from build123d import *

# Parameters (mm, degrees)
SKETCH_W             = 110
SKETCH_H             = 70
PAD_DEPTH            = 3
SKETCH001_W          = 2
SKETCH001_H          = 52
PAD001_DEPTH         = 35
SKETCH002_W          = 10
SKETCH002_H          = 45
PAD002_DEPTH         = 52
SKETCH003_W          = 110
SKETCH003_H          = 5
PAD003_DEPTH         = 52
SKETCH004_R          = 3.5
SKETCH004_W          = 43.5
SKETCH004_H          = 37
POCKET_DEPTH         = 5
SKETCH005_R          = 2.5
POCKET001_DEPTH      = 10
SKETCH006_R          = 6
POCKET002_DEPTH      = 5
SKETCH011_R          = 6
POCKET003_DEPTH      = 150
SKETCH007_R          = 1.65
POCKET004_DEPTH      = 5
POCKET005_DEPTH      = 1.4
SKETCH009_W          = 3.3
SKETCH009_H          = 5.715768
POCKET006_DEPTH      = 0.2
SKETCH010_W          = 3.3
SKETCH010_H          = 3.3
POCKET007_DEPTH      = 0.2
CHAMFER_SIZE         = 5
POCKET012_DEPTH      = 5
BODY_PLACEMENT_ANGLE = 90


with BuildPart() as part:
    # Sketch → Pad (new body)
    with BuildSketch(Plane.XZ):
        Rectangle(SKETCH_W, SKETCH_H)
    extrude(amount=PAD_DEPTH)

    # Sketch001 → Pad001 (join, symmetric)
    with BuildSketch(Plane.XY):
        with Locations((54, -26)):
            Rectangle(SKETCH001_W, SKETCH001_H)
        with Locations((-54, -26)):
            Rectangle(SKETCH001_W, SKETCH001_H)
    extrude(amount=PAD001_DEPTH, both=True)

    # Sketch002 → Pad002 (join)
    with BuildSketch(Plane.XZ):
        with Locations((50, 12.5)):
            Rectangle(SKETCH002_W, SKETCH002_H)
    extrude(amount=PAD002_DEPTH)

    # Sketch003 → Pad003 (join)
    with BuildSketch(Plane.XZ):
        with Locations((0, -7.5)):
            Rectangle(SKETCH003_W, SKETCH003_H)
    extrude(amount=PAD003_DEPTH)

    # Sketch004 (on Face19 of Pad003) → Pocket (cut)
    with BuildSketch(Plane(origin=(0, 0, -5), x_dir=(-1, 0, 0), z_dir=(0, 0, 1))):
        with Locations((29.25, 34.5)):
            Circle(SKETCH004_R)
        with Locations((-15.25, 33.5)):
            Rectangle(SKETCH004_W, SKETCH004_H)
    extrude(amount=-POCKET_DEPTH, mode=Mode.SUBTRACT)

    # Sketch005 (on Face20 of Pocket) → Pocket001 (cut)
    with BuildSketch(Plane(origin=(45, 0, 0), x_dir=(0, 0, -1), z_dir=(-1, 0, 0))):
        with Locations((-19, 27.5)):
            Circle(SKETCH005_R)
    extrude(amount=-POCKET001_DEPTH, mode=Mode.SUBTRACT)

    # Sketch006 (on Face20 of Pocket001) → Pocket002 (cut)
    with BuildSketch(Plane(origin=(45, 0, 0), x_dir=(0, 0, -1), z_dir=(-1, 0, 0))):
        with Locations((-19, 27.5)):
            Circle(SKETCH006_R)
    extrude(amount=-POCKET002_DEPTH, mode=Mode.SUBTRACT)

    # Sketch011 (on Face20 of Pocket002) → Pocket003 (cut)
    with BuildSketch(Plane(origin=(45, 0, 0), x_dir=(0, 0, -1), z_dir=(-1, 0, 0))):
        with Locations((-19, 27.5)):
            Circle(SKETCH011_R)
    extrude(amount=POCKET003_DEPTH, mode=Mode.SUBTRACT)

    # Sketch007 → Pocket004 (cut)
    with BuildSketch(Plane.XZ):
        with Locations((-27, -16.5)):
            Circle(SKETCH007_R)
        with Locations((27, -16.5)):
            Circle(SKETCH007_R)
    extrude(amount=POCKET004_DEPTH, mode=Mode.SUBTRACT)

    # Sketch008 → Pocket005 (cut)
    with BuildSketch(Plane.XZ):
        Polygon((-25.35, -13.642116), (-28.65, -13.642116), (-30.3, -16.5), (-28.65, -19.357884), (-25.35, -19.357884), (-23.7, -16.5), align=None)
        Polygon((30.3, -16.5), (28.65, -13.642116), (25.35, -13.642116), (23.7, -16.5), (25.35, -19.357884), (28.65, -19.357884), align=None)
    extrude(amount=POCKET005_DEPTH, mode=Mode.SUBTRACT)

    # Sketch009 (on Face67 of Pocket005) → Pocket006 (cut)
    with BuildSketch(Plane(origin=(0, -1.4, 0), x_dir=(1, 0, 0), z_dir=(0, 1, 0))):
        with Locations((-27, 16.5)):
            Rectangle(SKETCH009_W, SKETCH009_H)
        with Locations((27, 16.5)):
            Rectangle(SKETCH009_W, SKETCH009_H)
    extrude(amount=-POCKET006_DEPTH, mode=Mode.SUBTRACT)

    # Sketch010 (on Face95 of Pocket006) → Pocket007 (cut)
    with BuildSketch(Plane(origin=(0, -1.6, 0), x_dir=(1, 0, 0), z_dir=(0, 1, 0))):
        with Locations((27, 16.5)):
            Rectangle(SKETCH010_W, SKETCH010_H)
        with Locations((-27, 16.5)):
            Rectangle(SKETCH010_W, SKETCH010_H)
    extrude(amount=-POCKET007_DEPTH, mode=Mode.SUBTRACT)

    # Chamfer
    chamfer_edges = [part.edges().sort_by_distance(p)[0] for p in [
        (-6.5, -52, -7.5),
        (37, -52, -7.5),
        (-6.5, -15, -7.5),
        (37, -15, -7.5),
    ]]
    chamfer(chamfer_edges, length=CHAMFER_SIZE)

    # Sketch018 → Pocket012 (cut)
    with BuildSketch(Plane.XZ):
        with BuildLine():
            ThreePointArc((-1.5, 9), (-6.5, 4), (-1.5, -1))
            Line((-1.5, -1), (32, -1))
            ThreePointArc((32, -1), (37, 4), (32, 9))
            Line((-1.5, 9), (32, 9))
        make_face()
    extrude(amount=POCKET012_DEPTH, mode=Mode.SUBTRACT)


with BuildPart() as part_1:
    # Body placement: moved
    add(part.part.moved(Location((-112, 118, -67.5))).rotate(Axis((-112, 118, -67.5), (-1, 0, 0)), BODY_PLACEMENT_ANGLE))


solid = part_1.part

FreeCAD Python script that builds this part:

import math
import FreeCAD as App
import Part
import Sketcher
Q = App.Units.Quantity


def edges_at(feature, points):
    """Names of the edges that pass closest to the given points."""
    edges = feature.Shape.Edges
    near = lambda p: min(range(len(edges)), key=lambda i: edges[i].distToShape(Part.Vertex(*p))[0])
    return sorted({f"Edge{near(p) + 1}" for p in points})

doc = App.newDocument("Part")
params = doc.addObject("Spreadsheet::Sheet", "Params")
for row, (alias, value) in enumerate([
    ("sketch1_width", "110 mm"),
    ("sketch1_height", "70 mm"),
    ("pad1_length", "3 mm"),
    ("sketch2_width", "2 mm"),
    ("sketch2_height", "52 mm"),
    ("pad2_length", "70 mm"),
    ("sketch3_width", "10 mm"),
    ("sketch3_height", "45 mm"),
    ("pad3_length", "52 mm"),
    ("sketch4_width", "110 mm"),
    ("sketch4_height", "5 mm"),
    ("pad4_length", "52 mm"),
    ("sketch5_diameter", "7 mm"),
    ("sketch5_height", "37 mm"),
    ("sketch5_width", "43.5 mm"),
    ("pocket1_length", "5 mm"),
    ("sketch6_diameter", "5 mm"),
    ("pocket2_length", "10 mm"),
    ("sketch7_diameter", "12 mm"),
    ("pocket3_length", "5 mm"),
    ("sketch8_diameter", "12 mm"),
    ("pocket4_length", "150 mm"),
    ("sketch9_diameter", "3.3 mm"),
    ("pocket5_length", "5 mm"),
    ("sketch10_width", "3.3 mm"),
    ("sketch10_length", "3.3 mm"),
    ("pocket6_length", "1.4 mm"),
    ("sketch11_width", "3.3 mm"),
    ("pocket7_length", "0.2 mm"),
    ("sketch12_width", "3.3 mm"),
    ("pocket8_length", "0.2 mm"),
    ("chamfer_size", "5 mm"),
    ("sketch13_radius", "5 mm"),
    ("sketch13_width", "33.5 mm"),
    ("pocket9_length", "5 mm"),
], start=1):
    params.set(f"A{row}", alias)
    params.set(f"B{row}", "=" + value)
    params.setAlias(f"B{row}", alias)

body = doc.addObject("PartDesign::Body", "Body")

# Sketch on XZ plane
sketch1 = body.newObject("Sketcher::SketchObject", "Sketch")
sketch1.AttachmentSupport = (doc.getObject("XZ_Plane"), [""])
sketch1.MapMode = "FlatFace"
sketch1.addGeometry(Part.LineSegment(App.Vector(-55, 35, 0), App.Vector(-55, -35, 0)), False)
sketch1.addGeometry(Part.LineSegment(App.Vector(-55, -35, 0), App.Vector(55, -35, 0)), False)
sketch1.addGeometry(Part.LineSegment(App.Vector(55, -35, 0), App.Vector(55, 35, 0)), False)
sketch1.addGeometry(Part.LineSegment(App.Vector(55, 35, 0), App.Vector(-55, 35, 0)), False)
sketch1.addConstraint(Sketcher.Constraint("Coincident", 0, 2, 1, 1))
sketch1.addConstraint(Sketcher.Constraint("Coincident", 1, 2, 2, 1))
sketch1.addConstraint(Sketcher.Constraint("Coincident", 2, 2, 3, 1))
sketch1.addConstraint(Sketcher.Constraint("Coincident", 3, 2, 0, 1))
sketch1.addConstraint(Sketcher.Constraint("Vertical", 0))
sketch1.addConstraint(Sketcher.Constraint("Horizontal", 1))
sketch1.addConstraint(Sketcher.Constraint("Vertical", 2))
sketch1.addConstraint(Sketcher.Constraint("Horizontal", 3))
sketch1.addConstraint(Sketcher.Constraint("Symmetric", 0, 2, 2, 2, -1, 1))
sketch1.addConstraint(Sketcher.Constraint("DistanceX", 1, 1, 1, 2, 110.0))
sketch1.addConstraint(Sketcher.Constraint("DistanceY", 0, 2, 0, 1, 70.0))
sketch1.setExpression("Constraints[9]", "Params.sketch1_width")
sketch1.setExpression("Constraints[10]", "Params.sketch1_height")
pad1 = body.newObject("PartDesign::Pad", "Pad")
pad1.Profile = sketch1
pad1.setExpression("Length", "Params.pad1_length")

# Sketch on XY plane
sketch2 = body.newObject("Sketcher::SketchObject", "Sketch001")
sketch2.AttachmentSupport = (doc.getObject("XY_Plane"), [""])
sketch2.MapMode = "FlatFace"
sketch2.addGeometry(Part.LineSegment(App.Vector(53, 0, 0), App.Vector(53, -52, 0)), False)
sketch2.addGeometry(Part.LineSegment(App.Vector(53, -52, 0), App.Vector(55, -52, 0)), False)
sketch2.addGeometry(Part.LineSegment(App.Vector(55, -52, 0), App.Vector(55, 0, 0)), False)
sketch2.addGeometry(Part.LineSegment(App.Vector(55, 0, 0), App.Vector(53, 0, 0)), False)
sketch2.addGeometry(Part.LineSegment(App.Vector(-55, 0, 0), App.Vector(-55, -52, 0)), False)
sketch2.addGeometry(Part.LineSegment(App.Vector(-55, -52, 0), App.Vector(-53, -52, 0)), False)
sketch2.addGeometry(Part.LineSegment(App.Vector(-53, -52, 0), App.Vector(-53, 0, 0)), False)
sketch2.addGeometry(Part.LineSegment(App.Vector(-53, 0, 0), App.Vector(-55, 0, 0)), False)
sketch2.addConstraint(Sketcher.Constraint("Coincident", 0, 2, 1, 1))
sketch2.addConstraint(Sketcher.Constraint("Coincident", 1, 2, 2, 1))
sketch2.addConstraint(Sketcher.Constraint("Coincident", 2, 2, 3, 1))
sketch2.addConstraint(Sketcher.Constraint("Coincident", 3, 2, 0, 1))
sketch2.addConstraint(Sketcher.Constraint("Coincident", 4, 2, 5, 1))
sketch2.addConstraint(Sketcher.Constraint("Coincident", 5, 2, 6, 1))
sketch2.addConstraint(Sketcher.Constraint("Coincident", 6, 2, 7, 1))
sketch2.addConstraint(Sketcher.Constraint("Coincident", 7, 2, 4, 1))
sketch2.addConstraint(Sketcher.Constraint("Vertical", 0))
sketch2.addConstraint(Sketcher.Constraint("Horizontal", 1))
sketch2.addConstraint(Sketcher.Constraint("Vertical", 2))
sketch2.addConstraint(Sketcher.Constraint("Horizontal", 3))
sketch2.addConstraint(Sketcher.Constraint("Vertical", 4))
sketch2.addConstraint(Sketcher.Constraint("Horizontal", 5))
sketch2.addConstraint(Sketcher.Constraint("Vertical", 6))
sketch2.addConstraint(Sketcher.Constraint("Horizontal", 7))
sketch2.addConstraint(Sketcher.Constraint("Symmetric", 3, 2, 6, 2, -1, 1))
sketch2.addConstraint(Sketcher.Constraint("Symmetric", 1, 2, 4, 2, -2))
sketch2.addConstraint(Sketcher.Constraint("PointOnObject", 2, 2, -1))
sketch2.addConstraint(Sketcher.Constraint("DistanceX", 1, 1, 1, 2, 2.0))
sketch2.addConstraint(Sketcher.Constraint("DistanceY", 0, 2, 0, 1, 52.0))
sketch2.addConstraint(Sketcher.Constraint("DistanceX", -1, 1, 0, 2, 53.0))
sketch2.setExpression("Constraints[19]", "Params.sketch2_width")
sketch2.setExpression("Constraints[20]", "Params.sketch2_height")
pad2 = body.newObject("PartDesign::Pad", "Pad001")
pad2.Profile = sketch2
pad2.setExpression("Length", "Params.pad2_length")
pad2.Midplane = True

# Sketch on XZ plane
sketch3 = body.newObject("Sketcher::SketchObject", "Sketch002")
sketch3.AttachmentSupport = (doc.getObject("XZ_Plane"), [""])
sketch3.MapMode = "FlatFace"
sketch3.addGeometry(Part.LineSegment(App.Vector(45, 35, 0), App.Vector(45, -10, 0)), False)
sketch3.addGeometry(Part.LineSegment(App.Vector(45, -10, 0), App.Vector(55, -10, 0)), False)
sketch3.addGeometry(Part.LineSegment(App.Vector(55, -10, 0), App.Vector(55, 35, 0)), False)
sketch3.addGeometry(Part.LineSegment(App.Vector(55, 35, 0), App.Vector(45, 35, 0)), False)
sketch3.addConstraint(Sketcher.Constraint("Coincident", 0, 2, 1, 1))
sketch3.addConstraint(Sketcher.Constraint("Coincident", 1, 2, 2, 1))
sketch3.addConstraint(Sketcher.Constraint("Coincident", 2, 2, 3, 1))
sketch3.addConstraint(Sketcher.Constraint("Coincident", 3, 2, 0, 1))
sketch3.addConstraint(Sketcher.Constraint("Vertical", 0))
sketch3.addConstraint(Sketcher.Constraint("Horizontal", 1))
sketch3.addConstraint(Sketcher.Constraint("Vertical", 2))
sketch3.addConstraint(Sketcher.Constraint("Horizontal", 3))
sketch3.addConstraint(Sketcher.Constraint("DistanceX", 1, 1, 1, 2, 10.0))
sketch3.addConstraint(Sketcher.Constraint("DistanceY", 0, 2, 0, 1, 45.0))
sketch3.addConstraint(Sketcher.Constraint("DistanceX", -1, 1, 0, 2, 45.0))
sketch3.addConstraint(Sketcher.Constraint("DistanceY", 0, 2, -1, 1, 10.0))
sketch3.setExpression("Constraints[8]", "Params.sketch3_width")
sketch3.setExpression("Constraints[9]", "Params.sketch3_height")
pad3 = body.newObject("PartDesign::Pad", "Pad002")
pad3.Profile = sketch3
pad3.setExpression("Length", "Params.pad3_length")

# Sketch on XZ plane
sketch4 = body.newObject("Sketcher::SketchObject", "Sketch003")
sketch4.AttachmentSupport = (doc.getObject("XZ_Plane"), [""])
sketch4.MapMode = "FlatFace"
sketch4.addGeometry(Part.LineSegment(App.Vector(-55, -5, 0), App.Vector(-55, -10, 0)), False)
sketch4.addGeometry(Part.LineSegment(App.Vector(-55, -10, 0), App.Vector(55, -10, 0)), False)
sketch4.addGeometry(Part.LineSegment(App.Vector(55, -10, 0), App.Vector(55, -5, 0)), False)
sketch4.addGeometry(Part.LineSegment(App.Vector(55, -5, 0), App.Vector(-55, -5, 0)), False)
sketch4.addConstraint(Sketcher.Constraint("Coincident", 0, 2, 1, 1))
sketch4.addConstraint(Sketcher.Constraint("Coincident", 1, 2, 2, 1))
sketch4.addConstraint(Sketcher.Constraint("Coincident", 2, 2, 3, 1))
sketch4.addConstraint(Sketcher.Constraint("Coincident", 3, 2, 0, 1))
sketch4.addConstraint(Sketcher.Constraint("Vertical", 0))
sketch4.addConstraint(Sketcher.Constraint("Horizontal", 1))
sketch4.addConstraint(Sketcher.Constraint("Vertical", 2))
sketch4.addConstraint(Sketcher.Constraint("Horizontal", 3))
sketch4.addConstraint(Sketcher.Constraint("DistanceX", 1, 1, 1, 2, 110.0))
sketch4.addConstraint(Sketcher.Constraint("DistanceY", 0, 2, 0, 1, 5.0))
sketch4.addConstraint(Sketcher.Constraint("DistanceX", 0, 2, -1, 1, 55.0))
sketch4.addConstraint(Sketcher.Constraint("DistanceY", 0, 2, -1, 1, 10.0))
sketch4.setExpression("Constraints[8]", "Params.sketch4_width")
sketch4.setExpression("Constraints[9]", "Params.sketch4_height")
pad4 = body.newObject("PartDesign::Pad", "Pad003")
pad4.Profile = sketch4
pad4.setExpression("Length", "Params.pad4_length")

# Sketch on XY plane
sketch5 = body.newObject("Sketcher::SketchObject", "Sketch004")
sketch5.AttachmentSupport = (doc.getObject("XY_Plane"), [""])
sketch5.MapMode = "FlatFace"
sketch5.AttachmentOffset = App.Placement(App.Vector(0, 0, -5), App.Rotation())
sketch5.addGeometry(Part.Circle(App.Vector(-29.25, -34.5, 0), App.Vector(0, 0, 1), 3.5), False)
sketch5.addGeometry(Part.LineSegment(App.Vector(37, -52, 0), App.Vector(37, -15, 0)), False)
sketch5.addGeometry(Part.LineSegment(App.Vector(37, -15, 0), App.Vector(-6.5, -15, 0)), False)
sketch5.addGeometry(Part.LineSegment(App.Vector(-6.5, -15, 0), App.Vector(-6.5, -52, 0)), False)
sketch5.addGeometry(Part.LineSegment(App.Vector(-6.5, -52, 0), App.Vector(37, -52, 0)), False)
sketch5.addConstraint(Sketcher.Constraint("Coincident", 1, 2, 2, 1))
sketch5.addConstraint(Sketcher.Constraint("Coincident", 2, 2, 3, 1))
sketch5.addConstraint(Sketcher.Constraint("Coincident", 3, 2, 4, 1))
sketch5.addConstraint(Sketcher.Constraint("Coincident", 4, 2, 1, 1))
sketch5.addConstraint(Sketcher.Constraint("Vertical", 1))
sketch5.addConstraint(Sketcher.Constraint("Horizontal", 2))
sketch5.addConstraint(Sketcher.Constraint("Vertical", 3))
sketch5.addConstraint(Sketcher.Constraint("Horizontal", 4))
sketch5.addConstraint(Sketcher.Constraint("Diameter", 0, 7.0))
sketch5.addConstraint(Sketcher.Constraint("DistanceY", 1, 1, 1, 2, 37.0))
sketch5.addConstraint(Sketcher.Constraint("DistanceX", 2, 2, 2, 1, 43.5))
sketch5.addConstraint(Sketcher.Constraint("DistanceX", -1, 1, 1, 2, 37.0))
sketch5.addConstraint(Sketcher.Constraint("DistanceY", 1, 2, -1, 1, 15.0))
sketch5.addConstraint(Sketcher.Constraint("DistanceY", 0, 3, -1, 1, 34.5))
sketch5.addConstraint(Sketcher.Constraint("DistanceX", 0, 3, -1, 1, 29.25))
sketch5.setExpression("Constraints[8]", "Params.sketch5_diameter")
sketch5.setExpression("Constraints[9]", "Params.sketch5_height")
sketch5.setExpression("Constraints[10]", "Params.sketch5_width")
pocket1 = body.newObject("PartDesign::Pocket", "Pocket")
pocket1.Profile = sketch5
pocket1.setExpression("Length", "Params.pocket1_length")

# Sketch on YZ plane
sketch6 = body.newObject("Sketcher::SketchObject", "Sketch005")
sketch6.AttachmentSupport = (doc.getObject("YZ_Plane"), [""])
sketch6.MapMode = "FlatFace"
sketch6.AttachmentOffset = App.Placement(App.Vector(0, 0, 45), App.Rotation())
sketch6.addGeometry(Part.Circle(App.Vector(-27.5, 19, 0), App.Vector(0, 0, 1), 2.5), False)
sketch6.addConstraint(Sketcher.Constraint("Diameter", 0, 5.0))
sketch6.addConstraint(Sketcher.Constraint("DistanceY", -1, 1, 0, 3, 19.0))
sketch6.addConstraint(Sketcher.Constraint("DistanceX", 0, 3, -1, 1, 27.5))
sketch6.setExpression("Constraints[0]", "Params.sketch6_diameter")
pocket2 = body.newObject("PartDesign::Pocket", "Pocket001")
pocket2.Profile = sketch6
pocket2.setExpression("Length", "Params.pocket2_length")
pocket2.Reversed = True

# Sketch on YZ plane
sketch7 = body.newObject("Sketcher::SketchObject", "Sketch006")
sketch7.AttachmentSupport = (doc.getObject("YZ_Plane"), [""])
sketch7.MapMode = "FlatFace"
sketch7.AttachmentOffset = App.Placement(App.Vector(0, 0, 45), App.Rotation())
sketch7.addGeometry(Part.Circle(App.Vector(-27.5, 19, 0), App.Vector(0, 0, 1), 6), False)
sketch7.addConstraint(Sketcher.Constraint("Diameter", 0, 12.0))
sketch7.addConstraint(Sketcher.Constraint("DistanceY", -1, 1, 0, 3, 19.0))
sketch7.addConstraint(Sketcher.Constraint("DistanceX", 0, 3, -1, 1, 27.5))
sketch7.setExpression("Constraints[0]", "Params.sketch7_diameter")
pocket3 = body.newObject("PartDesign::Pocket", "Pocket002")
pocket3.Profile = sketch7
pocket3.setExpression("Length", "Params.pocket3_length")
pocket3.Reversed = True

# Sketch on YZ plane
sketch8 = body.newObject("Sketcher::SketchObject", "Sketch007")
sketch8.AttachmentSupport = (doc.getObject("YZ_Plane"), [""])
sketch8.MapMode = "FlatFace"
sketch8.AttachmentOffset = App.Placement(App.Vector(0, 0, 45), App.Rotation())
sketch8.addGeometry(Part.Circle(App.Vector(-27.5, 19, 0), App.Vector(0, 0, 1), 6), False)
sketch8.addConstraint(Sketcher.Constraint("Diameter", 0, 12.0))
sketch8.addConstraint(Sketcher.Constraint("DistanceY", -1, 1, 0, 3, 19.0))
sketch8.addConstraint(Sketcher.Constraint("DistanceX", 0, 3, -1, 1, 27.5))
sketch8.setExpression("Constraints[0]", "Params.sketch8_diameter")
pocket4 = body.newObject("PartDesign::Pocket", "Pocket003")
pocket4.Profile = sketch8
pocket4.setExpression("Length", "Params.pocket4_length")

# Sketch on XZ plane
sketch9 = body.newObject("Sketcher::SketchObject", "Sketch008")
sketch9.AttachmentSupport = (doc.getObject("XZ_Plane"), [""])
sketch9.MapMode = "FlatFace"
sketch9.addGeometry(Part.Circle(App.Vector(-27, -16.5, 0), App.Vector(0, 0, 1), 1.65), False)
sketch9.addGeometry(Part.Circle(App.Vector(27, -16.5, 0), App.Vector(0, 0, 1), 1.65), False)
sketch9.addConstraint(Sketcher.Constraint("Equal", 0, 1))
sketch9.addConstraint(Sketcher.Constraint("Symmetric", 0, 3, 1, 3, -2))
sketch9.addConstraint(Sketcher.Constraint("Diameter", 0, 3.3))
sketch9.addConstraint(Sketcher.Constraint("DistanceX", 0, 3, -1, 1, 27.0))
sketch9.addConstraint(Sketcher.Constraint("DistanceY", 0, 3, -1, 1, 16.5))
sketch9.setExpression("Constraints[2]", "Params.sketch9_diameter")
pocket5 = body.newObject("PartDesign::Pocket", "Pocket004")
pocket5.Profile = sketch9
pocket5.setExpression("Length", "Params.pocket5_length")
pocket5.Reversed = True

# Sketch on XZ plane
sketch10 = body.newObject("Sketcher::SketchObject", "Sketch009")
sketch10.AttachmentSupport = (doc.getObject("XZ_Plane"), [""])
sketch10.MapMode = "FlatFace"
sketch10.addGeometry(Part.LineSegment(App.Vector(-25.35, -13.642116, 0), App.Vector(-28.65, -13.642116, 0)), False)
sketch10.addGeometry(Part.LineSegment(App.Vector(-28.65, -13.642116, 0), App.Vector(-30.3, -16.5, 0)), False)
sketch10.addGeometry(Part.LineSegment(App.Vector(-30.3, -16.5, 0), App.Vector(-28.65, -19.357884, 0)), False)
sketch10.addGeometry(Part.LineSegment(App.Vector(-28.65, -19.357884, 0), App.Vector(-25.35, -19.357884, 0)), False)
sketch10.addGeometry(Part.LineSegment(App.Vector(-25.35, -19.357884, 0), App.Vector(-23.7, -16.5, 0)), False)
sketch10.addGeometry(Part.LineSegment(App.Vector(-23.7, -16.5, 0), App.Vector(-25.35, -13.642116, 0)), False)
sketch10.addGeometry(Part.LineSegment(App.Vector(30.3, -16.5, 0), App.Vector(28.65, -13.642116, 0)), False)
sketch10.addGeometry(Part.LineSegment(App.Vector(28.65, -13.642116, 0), App.Vector(25.35, -13.642116, 0)), False)
sketch10.addGeometry(Part.LineSegment(App.Vector(25.35, -13.642116, 0), App.Vector(23.7, -16.5, 0)), False)
sketch10.addGeometry(Part.LineSegment(App.Vector(23.7, -16.5, 0), App.Vector(25.35, -19.357884, 0)), False)
sketch10.addGeometry(Part.LineSegment(App.Vector(25.35, -19.357884, 0), App.Vector(28.65, -19.357884, 0)), False)
sketch10.addGeometry(Part.LineSegment(App.Vector(28.65, -19.357884, 0), App.Vector(30.3, -16.5, 0)), False)
sketch10.addConstraint(Sketcher.Constraint("Coincident", 0, 2, 1, 1))
sketch10.addConstraint(Sketcher.Constraint("Coincident", 1, 2, 2, 1))
sketch10.addConstraint(Sketcher.Constraint("Coincident", 2, 2, 3, 1))
sketch10.addConstraint(Sketcher.Constraint("Coincident", 3, 2, 4, 1))
sketch10.addConstraint(Sketcher.Constraint("Coincident", 4, 2, 5, 1))
sketch10.addConstraint(Sketcher.Constraint("Coincident", 5, 2, 0, 1))
sketch10.addConstraint(Sketcher.Constraint("Coincident", 6, 2, 7, 1))
sketch10.addConstraint(Sketcher.Constraint("Coincident", 7, 2, 8, 1))
sketch10.addConstraint(Sketcher.Constraint("Coincident", 8, 2, 9, 1))
sketch10.addConstraint(Sketcher.Constraint("Coincident", 9, 2, 10, 1))
sketch10.addConstraint(Sketcher.Constraint("Coincident", 10, 2, 11, 1))
sketch10.addConstraint(Sketcher.Constraint("Coincident", 11, 2, 6, 1))
sketch10.addConstraint(Sketcher.Constraint("Horizontal", 0))
sketch10.addConstraint(Sketcher.Constraint("Horizontal", 3))
sketch10.addConstraint(Sketcher.Constraint("Horizontal", 7))
sketch10.addConstraint(Sketcher.Constraint("Horizontal", 10))
sketch10.addConstraint(Sketcher.Constraint("Symmetric", 0, 2, 6, 2, -2))
sketch10.addConstraint(Sketcher.Constraint("Symmetric", 4, 2, 8, 2, -2))
sketch10.addConstraint(Sketcher.Constraint("Symmetric", 3, 2, 9, 2, -2))
sketch10.addConstraint(Sketcher.Constraint("Symmetric", 1, 2, 11, 2, -2))
sketch10.addConstraint(Sketcher.Constraint("Parallel", 1, 4))
sketch10.addConstraint(Sketcher.Constraint("Parallel", 2, 5))
sketch10.addConstraint(Sketcher.Constraint("Parallel", 5, 6))
sketch10.addConstraint(Sketcher.Constraint("Parallel", 4, 8))
sketch10.addConstraint(Sketcher.Constraint("Parallel", 8, 11))
sketch10.addConstraint(Sketcher.Constraint("Horizontal", 1, 2, 4, 2))
sketch10.addConstraint(Sketcher.Constraint("Vertical", 0, 2, 2, 2))
sketch10.addConstraint(Sketcher.Constraint("Angle", 1, Q("-119.999999 deg")))
sketch10.addConstraint(Sketcher.Constraint("DistanceX", 0, 2, 0, 1, 3.3))
sketch10.addConstraint(Sketcher.Constraint("DistanceX", 5, 2, 6, 2, 54.0))
sketch10.addConstraint(Sketcher.Constraint("Distance", 1, 3.3))
sketch10.addConstraint(Sketcher.Constraint("DistanceY", 1, 2, -1, 1, 16.5))
sketch10.setExpression("Constraints[28]", "Params.sketch10_width")
sketch10.setExpression("Constraints[30]", "Params.sketch10_length")
pocket6 = body.newObject("PartDesign::Pocket", "Pocket005")
pocket6.Profile = sketch10
pocket6.setExpression("Length", "Params.pocket6_length")
pocket6.Reversed = True

# Sketch on XZ plane
sketch11 = body.newObject("Sketcher::SketchObject", "Sketch010")
sketch11.AttachmentSupport = (doc.getObject("XZ_Plane"), [""])
sketch11.MapMode = "FlatFace"
sketch11.AttachmentOffset = App.Placement(App.Vector(0, 0, 1.4), App.Rotation())
sketch11.addGeometry(Part.LineSegment(App.Vector(-28.65, -19.357884, 0), App.Vector(-28.65, -13.642116, 0)), False)
sketch11.addGeometry(Part.LineSegment(App.Vector(-28.65, -13.642116, 0), App.Vector(-25.35, -13.642116, 0)), False)
sketch11.addGeometry(Part.LineSegment(App.Vector(-25.35, -13.642116, 0), App.Vector(-25.35, -19.357884, 0)), False)
sketch11.addGeometry(Part.LineSegment(App.Vector(-25.35, -19.357884, 0), App.Vector(-28.65, -19.357884, 0)), False)
sketch11.addGeometry(Part.LineSegment(App.Vector(25.35, -19.357884, 0), App.Vector(25.35, -13.642116, 0)), False)
sketch11.addGeometry(Part.LineSegment(App.Vector(25.35, -13.642116, 0), App.Vector(28.65, -13.642116, 0)), False)
sketch11.addGeometry(Part.LineSegment(App.Vector(28.65, -13.642116, 0), App.Vector(28.65, -19.357884, 0)), False)
sketch11.addGeometry(Part.LineSegment(App.Vector(28.65, -19.357884, 0), App.Vector(25.35, -19.357884, 0)), False)
sketch11.addConstraint(Sketcher.Constraint("Coincident", 0, 2, 1, 1))
sketch11.addConstraint(Sketcher.Constraint("Coincident", 1, 2, 2, 1))
sketch11.addConstraint(Sketcher.Constraint("Coincident", 2, 2, 3, 1))
sketch11.addConstraint(Sketcher.Constraint("Coincident", 3, 2, 0, 1))
sketch11.addConstraint(Sketcher.Constraint("Coincident", 4, 2, 5, 1))
sketch11.addConstraint(Sketcher.Constraint("Coincident", 5, 2, 6, 1))
sketch11.addConstraint(Sketcher.Constraint("Coincident", 6, 2, 7, 1))
sketch11.addConstraint(Sketcher.Constraint("Coincident", 7, 2, 4, 1))
sketch11.addConstraint(Sketcher.Constraint("Vertical", 0))
sketch11.addConstraint(Sketcher.Constraint("Horizontal", 1))
sketch11.addConstraint(Sketcher.Constraint("Vertical", 2))
sketch11.addConstraint(Sketcher.Constraint("Horizontal", 3))
sketch11.addConstraint(Sketcher.Constraint("Vertical", 4))
sketch11.addConstraint(Sketcher.Constraint("Horizontal", 5))
sketch11.addConstraint(Sketcher.Constraint("Vertical", 6))
sketch11.addConstraint(Sketcher.Constraint("Horizontal", 7))
sketch11.addConstraint(Sketcher.Constraint("Symmetric", 1, 2, 4, 2, -2))
sketch11.addConstraint(Sketcher.Constraint("Symmetric", 3, 2, 6, 2, -2))
sketch11.addConstraint(Sketcher.Constraint("DistanceX", 1, 1, 1, 2, 3.3))
sketch11.addConstraint(Sketcher.Constraint("DistanceX", 0, 2, 4, 2, 54.0))
sketch11.addConstraint(Sketcher.Constraint("DistanceY", 0, 1, 0, 2, 5.715768))
sketch11.addConstraint(Sketcher.Constraint("DistanceY", 0, 2, -1, 1, 13.642116))
sketch11.setExpression("Constraints[18]", "Params.sketch11_width")
pocket7 = body.newObject("PartDesign::Pocket", "Pocket006")
pocket7.Profile = sketch11
pocket7.setExpression("Length", "Params.pocket7_length")
pocket7.Reversed = True

# Sketch on XZ plane
sketch12 = body.newObject("Sketcher::SketchObject", "Sketch011")
sketch12.AttachmentSupport = (doc.getObject("XZ_Plane"), [""])
sketch12.MapMode = "FlatFace"
sketch12.AttachmentOffset = App.Placement(App.Vector(0, 0, 1.6), App.Rotation())
sketch12.addGeometry(Part.LineSegment(App.Vector(25.35, -18.15, 0), App.Vector(25.35, -14.85, 0)), False)
sketch12.addGeometry(Part.LineSegment(App.Vector(25.35, -14.85, 0), App.Vector(28.65, -14.85, 0)), False)
sketch12.addGeometry(Part.LineSegment(App.Vector(28.65, -14.85, 0), App.Vector(28.65, -18.15, 0)), False)
sketch12.addGeometry(Part.LineSegment(App.Vector(28.65, -18.15, 0), App.Vector(25.35, -18.15, 0)), False)
sketch12.addGeometry(Part.LineSegment(App.Vector(-28.65, -18.15, 0), App.Vector(-28.65, -14.85, 0)), False)
sketch12.addGeometry(Part.LineSegment(App.Vector(-28.65, -14.85, 0), App.Vector(-25.35, -14.85, 0)), False)
sketch12.addGeometry(Part.LineSegment(App.Vector(-25.35, -14.85, 0), App.Vector(-25.35, -18.15, 0)), False)
sketch12.addGeometry(Part.LineSegment(App.Vector(-25.35, -18.15, 0), App.Vector(-28.65, -18.15, 0)), False)
sketch12.addConstraint(Sketcher.Constraint("Coincident", 0, 2, 1, 1))
sketch12.addConstraint(Sketcher.Constraint("Coincident", 1, 2, 2, 1))
sketch12.addConstraint(Sketcher.Constraint("Coincident", 2, 2, 3, 1))
sketch12.addConstraint(Sketcher.Constraint("Coincident", 3, 2, 0, 1))
sketch12.addConstraint(Sketcher.Constraint("Coincident", 4, 2, 5, 1))
sketch12.addConstraint(Sketcher.Constraint("Coincident", 5, 2, 6, 1))
sketch12.addConstraint(Sketcher.Constraint("Coincident", 6, 2, 7, 1))
sketch12.addConstraint(Sketcher.Constraint("Coincident", 7, 2, 4, 1))
sketch12.addConstraint(Sketcher.Constraint("Vertical", 0))
sketch12.addConstraint(Sketcher.Constraint("Horizontal", 1))
sketch12.addConstraint(Sketcher.Constraint("Vertical", 2))
sketch12.addConstraint(Sketcher.Constraint("Horizontal", 3))
sketch12.addConstraint(Sketcher.Constraint("Vertical", 4))
sketch12.addConstraint(Sketcher.Constraint("Horizontal", 5))
sketch12.addConstraint(Sketcher.Constraint("Vertical", 6))
sketch12.addConstraint(Sketcher.Constraint("Horizontal", 7))
sketch12.addConstraint(Sketcher.Constraint("Symmetric", 1, 2, 4, 2, -2))
sketch12.addConstraint(Sketcher.Constraint("Symmetric", 3, 2, 6, 2, -2))
sketch12.addConstraint(Sketcher.Constraint("Equal", 7, 0))
sketch12.addConstraint(Sketcher.Constraint("DistanceX", 1, 1, 1, 2, 3.3))
sketch12.addConstraint(Sketcher.Constraint("DistanceX", 4, 2, 0, 2, 54.0))
sketch12.addConstraint(Sketcher.Constraint("DistanceY", 0, 2, -1, 1, 14.85))
sketch12.setExpression("Constraints[19]", "Params.sketch12_width")
pocket8 = body.newObject("PartDesign::Pocket", "Pocket007")
pocket8.Profile = sketch12
pocket8.setExpression("Length", "Params.pocket8_length")
pocket8.Reversed = True
doc.recompute()

chamfer = body.newObject("PartDesign::Chamfer", "Chamfer")
chamfer.Base = (pocket8, edges_at(pocket8, [
    (-6.5, -52, -7.5),
    (37, -52, -7.5),
    (-6.5, -15, -7.5),
    (37, -15, -7.5),
]))
chamfer.setExpression("Size", "Params.chamfer_size")

# Sketch on XZ plane
sketch13 = body.newObject("Sketcher::SketchObject", "Sketch012")
sketch13.AttachmentSupport = (doc.getObject("XZ_Plane"), [""])
sketch13.MapMode = "FlatFace"
sketch13.addGeometry(Part.ArcOfCircle(Part.Circle(App.Vector(-1.5, 4, 0), App.Vector(0, 0, 1), 5), math.radians(90), math.radians(270)), False)
sketch13.addGeometry(Part.LineSegment(App.Vector(-1.5, -1, 0), App.Vector(32, -1, 0)), False)
sketch13.addGeometry(Part.ArcOfCircle(Part.Circle(App.Vector(32, 4, 0), App.Vector(0, 0, 1), 5), math.radians(-90), math.radians(90)), False)
sketch13.addGeometry(Part.LineSegment(App.Vector(32, 9, 0), App.Vector(-1.5, 9, 0)), False)
sketch13.addConstraint(Sketcher.Constraint("Tangent", 0, 2, 1, 1))
sketch13.addConstraint(Sketcher.Constraint("Tangent", 1, 2, 2, 1))
sketch13.addConstraint(Sketcher.Constraint("Tangent", 2, 2, 3, 1))
sketch13.addConstraint(Sketcher.Constraint("Tangent", 3, 2, 0, 1))
sketch13.addConstraint(Sketcher.Constraint("Horizontal", 1))
sketch13.addConstraint(Sketcher.Constraint("Horizontal", 3))
sketch13.addConstraint(Sketcher.Constraint("Radius", 0, 5.0))
sketch13.addConstraint(Sketcher.Constraint("DistanceX", 1, 1, 1, 2, 33.5))
sketch13.addConstraint(Sketcher.Constraint("DistanceY", -1, 1, 0, 3, 4.0))
sketch13.addConstraint(Sketcher.Constraint("DistanceX", -1, 1, 2, 3, 32.0))
sketch13.setExpression("Constraints[6]", "Params.sketch13_radius")
sketch13.setExpression("Constraints[7]", "Params.sketch13_width")
pocket9 = body.newObject("PartDesign::Pocket", "Pocket008")
pocket9.Profile = sketch13
pocket9.setExpression("Length", "Params.pocket9_length")
pocket9.Reversed = True
body2 = doc.addObject("PartDesign::Body", "Body001")
doc.recompute()

body.Placement = App.Placement(App.Vector(-112, 118, -67.5), App.Rotation(App.Vector(-1, 0, 0), 90))
boolean = body2.newObject("PartDesign::Boolean", "Boolean")
boolean.Type = "Fuse"
boolean.addObjects([body])

doc.recompute()
